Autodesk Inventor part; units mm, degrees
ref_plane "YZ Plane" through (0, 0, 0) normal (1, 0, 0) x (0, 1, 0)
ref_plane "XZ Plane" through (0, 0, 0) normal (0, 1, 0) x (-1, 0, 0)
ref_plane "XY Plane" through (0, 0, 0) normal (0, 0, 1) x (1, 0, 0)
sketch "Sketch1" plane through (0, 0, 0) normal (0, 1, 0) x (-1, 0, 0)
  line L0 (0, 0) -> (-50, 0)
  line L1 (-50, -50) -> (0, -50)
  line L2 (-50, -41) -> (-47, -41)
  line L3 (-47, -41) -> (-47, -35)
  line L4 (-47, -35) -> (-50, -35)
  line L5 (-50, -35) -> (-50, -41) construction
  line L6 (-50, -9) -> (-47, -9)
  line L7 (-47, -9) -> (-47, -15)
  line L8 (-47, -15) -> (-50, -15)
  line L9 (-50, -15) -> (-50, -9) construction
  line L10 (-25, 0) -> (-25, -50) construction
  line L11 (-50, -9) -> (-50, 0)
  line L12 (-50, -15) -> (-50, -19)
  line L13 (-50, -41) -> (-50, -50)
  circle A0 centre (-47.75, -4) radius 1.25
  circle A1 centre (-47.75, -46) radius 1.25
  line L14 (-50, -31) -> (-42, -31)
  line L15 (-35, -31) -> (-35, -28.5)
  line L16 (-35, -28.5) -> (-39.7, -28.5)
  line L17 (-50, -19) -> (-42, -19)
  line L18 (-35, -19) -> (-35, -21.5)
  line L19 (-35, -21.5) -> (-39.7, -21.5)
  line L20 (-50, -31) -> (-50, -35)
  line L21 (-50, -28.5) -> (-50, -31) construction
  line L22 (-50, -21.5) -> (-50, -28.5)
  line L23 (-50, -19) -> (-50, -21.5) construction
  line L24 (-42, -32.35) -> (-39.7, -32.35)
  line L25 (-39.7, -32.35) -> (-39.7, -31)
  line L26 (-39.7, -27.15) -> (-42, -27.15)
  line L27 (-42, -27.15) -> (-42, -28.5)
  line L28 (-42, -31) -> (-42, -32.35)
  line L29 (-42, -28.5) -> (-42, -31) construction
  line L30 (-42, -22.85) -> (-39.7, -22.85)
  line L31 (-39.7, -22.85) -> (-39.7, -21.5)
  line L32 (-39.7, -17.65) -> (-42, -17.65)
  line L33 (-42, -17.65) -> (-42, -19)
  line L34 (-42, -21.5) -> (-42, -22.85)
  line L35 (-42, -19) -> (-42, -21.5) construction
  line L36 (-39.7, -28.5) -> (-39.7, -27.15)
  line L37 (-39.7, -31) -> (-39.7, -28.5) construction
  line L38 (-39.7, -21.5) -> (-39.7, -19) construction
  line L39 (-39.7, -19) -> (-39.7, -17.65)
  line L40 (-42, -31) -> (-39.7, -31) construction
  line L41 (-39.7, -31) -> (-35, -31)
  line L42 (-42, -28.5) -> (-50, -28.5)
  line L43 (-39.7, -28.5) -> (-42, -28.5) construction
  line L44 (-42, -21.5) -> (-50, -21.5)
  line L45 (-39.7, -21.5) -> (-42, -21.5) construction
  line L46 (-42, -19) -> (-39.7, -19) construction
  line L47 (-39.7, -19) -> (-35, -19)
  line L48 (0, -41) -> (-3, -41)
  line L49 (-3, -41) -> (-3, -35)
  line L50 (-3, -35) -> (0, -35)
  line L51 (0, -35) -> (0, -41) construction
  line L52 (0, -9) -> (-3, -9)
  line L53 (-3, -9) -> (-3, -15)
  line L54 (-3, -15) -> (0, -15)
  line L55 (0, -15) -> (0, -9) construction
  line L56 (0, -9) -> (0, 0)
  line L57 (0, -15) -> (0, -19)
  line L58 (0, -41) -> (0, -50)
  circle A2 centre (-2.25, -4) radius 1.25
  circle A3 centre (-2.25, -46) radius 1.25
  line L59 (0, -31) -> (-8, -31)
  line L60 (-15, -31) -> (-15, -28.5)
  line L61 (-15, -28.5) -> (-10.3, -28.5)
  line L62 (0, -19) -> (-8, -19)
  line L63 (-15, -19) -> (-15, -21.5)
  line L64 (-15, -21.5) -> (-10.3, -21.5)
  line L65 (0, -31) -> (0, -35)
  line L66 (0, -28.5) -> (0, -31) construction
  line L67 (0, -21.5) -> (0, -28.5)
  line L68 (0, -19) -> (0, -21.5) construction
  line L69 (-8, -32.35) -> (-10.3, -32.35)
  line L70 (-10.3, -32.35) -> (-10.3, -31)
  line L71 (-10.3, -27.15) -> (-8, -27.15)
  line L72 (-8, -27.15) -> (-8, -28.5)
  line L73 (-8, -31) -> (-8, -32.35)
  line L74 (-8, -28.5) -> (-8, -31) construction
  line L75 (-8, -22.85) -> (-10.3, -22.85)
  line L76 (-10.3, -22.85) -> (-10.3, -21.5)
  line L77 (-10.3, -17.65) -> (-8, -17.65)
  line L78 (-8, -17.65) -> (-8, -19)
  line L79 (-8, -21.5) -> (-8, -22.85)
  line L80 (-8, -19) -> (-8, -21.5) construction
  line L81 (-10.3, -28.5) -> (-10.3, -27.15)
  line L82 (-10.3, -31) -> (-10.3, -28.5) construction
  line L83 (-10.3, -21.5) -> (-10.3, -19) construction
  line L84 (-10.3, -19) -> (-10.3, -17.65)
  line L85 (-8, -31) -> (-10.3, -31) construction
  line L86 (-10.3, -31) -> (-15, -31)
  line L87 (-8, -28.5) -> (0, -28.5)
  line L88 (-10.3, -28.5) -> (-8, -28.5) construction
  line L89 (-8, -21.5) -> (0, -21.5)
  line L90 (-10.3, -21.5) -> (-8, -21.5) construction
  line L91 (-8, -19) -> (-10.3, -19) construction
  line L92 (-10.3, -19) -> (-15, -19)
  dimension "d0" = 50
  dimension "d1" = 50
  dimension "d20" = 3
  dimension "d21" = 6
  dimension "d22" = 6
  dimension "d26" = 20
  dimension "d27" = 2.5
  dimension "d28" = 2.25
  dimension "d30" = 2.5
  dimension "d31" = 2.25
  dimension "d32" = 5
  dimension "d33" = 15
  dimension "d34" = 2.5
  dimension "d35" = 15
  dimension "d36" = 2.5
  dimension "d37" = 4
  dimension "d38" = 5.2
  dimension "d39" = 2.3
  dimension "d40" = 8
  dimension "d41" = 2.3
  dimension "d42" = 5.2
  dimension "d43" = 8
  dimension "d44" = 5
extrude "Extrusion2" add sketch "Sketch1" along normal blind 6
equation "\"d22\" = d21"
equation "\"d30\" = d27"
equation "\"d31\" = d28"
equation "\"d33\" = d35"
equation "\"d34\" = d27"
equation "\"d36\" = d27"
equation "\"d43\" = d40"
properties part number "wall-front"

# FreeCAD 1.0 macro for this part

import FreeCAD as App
import Part
import Sketcher
from FreeCAD import Vector

doc = App.newDocument("Part")
body = doc.addObject("PartDesign::Body", "Body")

# Sketch on XZ plane
sketch1 = body.newObject("Sketcher::SketchObject", "Sketch")
sketch1.AttachmentSupport = (doc.getObject("XZ_Plane"), [""])
sketch1.MapMode = "FlatFace"
sketch1.addGeometry([
    Part.LineSegment(Vector(0, -9, 0), Vector(0, 0, 0)),  # 0
    Part.LineSegment(Vector(0, 0, 0), Vector(50, 0, 0)),  # 1
    Part.LineSegment(Vector(50, 0, 0), Vector(50, -9, 0)),  # 2
    Part.LineSegment(Vector(50, -9, 0), Vector(47, -9, 0)),  # 3
    Part.LineSegment(Vector(47, -9, 0), Vector(47, -15, 0)),  # 4
    Part.LineSegment(Vector(47, -15, 0), Vector(50, -15, 0)),  # 5
    Part.LineSegment(Vector(50, -15, 0), Vector(50, -19, 0)),  # 6
    Part.LineSegment(Vector(50, -19, 0), Vector(42, -19, 0)),  # 7
    Part.LineSegment(Vector(42, -19, 0), Vector(42, -17.6, 0)),  # 8
    Part.LineSegment(Vector(42, -17.6, 0), Vector(39.7, -17.6, 0)),  # 9
    Part.LineSegment(Vector(39.7, -17.6, 0), Vector(39.7, -19, 0)),  # 10
    Part.LineSegment(Vector(39.7, -19, 0), Vector(35, -19, 0)),  # 11
    Part.LineSegment(Vector(35, -19, 0), Vector(35, -21.5, 0)),  # 12
    Part.LineSegment(Vector(35, -21.5, 0), Vector(39.7, -21.5, 0)),  # 13
    Part.LineSegment(Vector(39.7, -21.5, 0), Vector(39.7, -22.9, 0)),  # 14
    Part.LineSegment(Vector(39.7, -22.9, 0), Vector(42, -22.9, 0)),  # 15
    Part.LineSegment(Vector(42, -22.9, 0), Vector(42, -21.5, 0)),  # 16
    Part.LineSegment(Vector(42, -21.5, 0), Vector(50, -21.5, 0)),  # 17
    Part.LineSegment(Vector(50, -21.5, 0), Vector(50, -28.5, 0)),  # 18
    Part.LineSegment(Vector(50, -28.5, 0), Vector(42, -28.5, 0)),  # 19
    Part.LineSegment(Vector(42, -28.5, 0), Vector(42, -27.1, 0)),  # 20
    Part.LineSegment(Vector(42, -27.1, 0), Vector(39.7, -27.1, 0)),  # 21
    Part.LineSegment(Vector(39.7, -27.1, 0), Vector(39.7, -28.5, 0)),  # 22
    Part.LineSegment(Vector(39.7, -28.5, 0), Vector(35, -28.5, 0)),  # 23
    Part.LineSegment(Vector(35, -28.5, 0), Vector(35, -31, 0)),  # 24
    Part.LineSegment(Vector(35, -31, 0), Vector(39.7, -31, 0)),  # 25
    Part.LineSegment(Vector(39.7, -31, 0), Vector(39.7, -32.4, 0)),  # 26
    Part.LineSegment(Vector(39.7, -32.4, 0), Vector(42, -32.4, 0)),  # 27
    Part.LineSegment(Vector(42, -32.4, 0), Vector(42, -31, 0)),  # 28
    Part.LineSegment(Vector(42, -31, 0), Vector(50, -31, 0)),  # 29
    Part.LineSegment(Vector(50, -31, 0), Vector(50, -35, 0)),  # 30
    Part.LineSegment(Vector(50, -35, 0), Vector(47, -35, 0)),  # 31
    Part.LineSegment(Vector(47, -35, 0), Vector(47, -41, 0)),  # 32
    Part.LineSegment(Vector(47, -41, 0), Vector(50, -41, 0)),  # 33
    Part.LineSegment(Vector(50, -41, 0), Vector(50, -50, 0)),  # 34
    Part.LineSegment(Vector(50, -50, 0), Vector(0, -50, 0)),  # 35
    Part.LineSegment(Vector(0, -50, 0), Vector(0, -41, 0)),  # 36
    Part.LineSegment(Vector(0, -41, 0), Vector(3, -41, 0)),  # 37
    Part.LineSegment(Vector(3, -41, 0), Vector(3, -35, 0)),  # 38
    Part.LineSegment(Vector(3, -35, 0), Vector(0, -35, 0)),  # 39
    Part.LineSegment(Vector(0, -35, 0), Vector(0, -31, 0)),  # 40
    Part.LineSegment(Vector(0, -31, 0), Vector(8, -31, 0)),  # 41
    Part.LineSegment(Vector(8, -31, 0), Vector(8, -32.4, 0)),  # 42
    Part.LineSegment(Vector(8, -32.4, 0), Vector(10.3, -32.4, 0)),  # 43
    Part.LineSegment(Vector(10.3, -32.4, 0), Vector(10.3, -31, 0)),  # 44
    Part.LineSegment(Vector(10.3, -31, 0), Vector(15, -31, 0)),  # 45
    Part.LineSegment(Vector(15, -31, 0), Vector(15, -28.5, 0)),  # 46
    Part.LineSegment(Vector(15, -28.5, 0), Vector(10.3, -28.5, 0)),  # 47
    Part.LineSegment(Vector(10.3, -28.5, 0), Vector(10.3, -27.1, 0)),  # 48
    Part.LineSegment(Vector(10.3, -27.1, 0), Vector(8, -27.1, 0)),  # 49
    Part.LineSegment(Vector(8, -27.1, 0), Vector(8, -28.5, 0)),  # 50
    Part.LineSegment(Vector(8, -28.5, 0), Vector(0, -28.5, 0)),  # 51
    Part.LineSegment(Vector(0, -28.5, 0), Vector(0, -21.5, 0)),  # 52
    Part.LineSegment(Vector(0, -21.5, 0), Vector(8, -21.5, 0)),  # 53
    Part.LineSegment(Vector(8, -21.5, 0), Vector(8, -22.9, 0)),  # 54
    Part.LineSegment(Vector(8, -22.9, 0), Vector(10.3, -22.9, 0)),  # 55
    Part.LineSegment(Vector(10.3, -22.9, 0), Vector(10.3, -21.5, 0)),  # 56
    Part.LineSegment(Vector(10.3, -21.5, 0), Vector(15, -21.5, 0)),  # 57
    Part.LineSegment(Vector(15, -21.5, 0), Vector(15, -19, 0)),  # 58
    Part.LineSegment(Vector(15, -19, 0), Vector(10.3, -19, 0)),  # 59
    Part.LineSegment(Vector(10.3, -19, 0), Vector(10.3, -17.6, 0)),  # 60
    Part.LineSegment(Vector(10.3, -17.6, 0), Vector(8, -17.6, 0)),  # 61
    Part.LineSegment(Vector(8, -17.6, 0), Vector(8, -19, 0)),  # 62
    Part.LineSegment(Vector(8, -19, 0), Vector(0, -19, 0)),  # 63
    Part.LineSegment(Vector(0, -19, 0), Vector(0, -15, 0)),  # 64
    Part.LineSegment(Vector(0, -15, 0), Vector(3, -15, 0)),  # 65
    Part.LineSegment(Vector(3, -15, 0), Vector(3, -9, 0)),  # 66
    Part.LineSegment(Vector(3, -9, 0), Vector(0, -9, 0)),  # 67
    Part.Circle(Vector(47.8, -46, 0), Vector(0, 0, 1), 1.2),  # 68
    Part.Circle(Vector(2.2, -46, 0), Vector(0, 0, 1), 1.2),  # 69
    Part.Circle(Vector(47.8, -4, 0), Vector(0, 0, 1), 1.2),  # 70
    Part.Circle(Vector(2.2, -4, 0), Vector(0, 0, 1), 1.2),  # 71
], False)
sketch1.addConstraint([
    Sketcher.Constraint("Coincident", 0, 2, 1, 1),
    Sketcher.Constraint("Coincident", 1, 2, 2, 1),
    Sketcher.Constraint("Coincident", 2, 2, 3, 1),
    Sketcher.Constraint("Coincident", 3, 2, 4, 1),
    Sketcher.Constraint("Coincident", 4, 2, 5, 1),
    Sketcher.Constraint("Coincident", 5, 2, 6, 1),
    Sketcher.Constraint("Coincident", 6, 2, 7, 1),
    Sketcher.Constraint("Coincident", 7, 2, 8, 1),
    Sketcher.Constraint("Coincident", 8, 2, 9, 1),
    Sketcher.Constraint("Coincident", 9, 2, 10, 1),
    Sketcher.Constraint("Coincident", 10, 2, 11, 1),
    Sketcher.Constraint("Coincident", 11, 2, 12, 1),
    Sketcher.Constraint("Coincident", 12, 2, 13, 1),
    Sketcher.Constraint("Coincident", 13, 2, 14, 1),
    Sketcher.Constraint("Coincident", 14, 2, 15, 1),
    Sketcher.Constraint("Coincident", 15, 2, 16, 1),
    Sketcher.Constraint("Coincident", 16, 2, 17, 1),
    Sketcher.Constraint("Coincident", 17, 2, 18, 1),
    Sketcher.Constraint("Coincident", 18, 2, 19, 1),
    Sketcher.Constraint("Coincident", 19, 2, 20, 1),
    Sketcher.Constraint("Coincident", 20, 2, 21, 1),
    Sketcher.Constraint("Coincident", 21, 2, 22, 1),
    Sketcher.Constraint("Coincident", 22, 2, 23, 1),
    Sketcher.Constraint("Coincident", 23, 2, 24, 1),
    Sketcher.Constraint("Coincident", 24, 2, 25, 1),
    Sketcher.Constraint("Coincident", 25, 2, 26, 1),
    Sketcher.Constraint("Coincident", 26, 2, 27, 1),
    Sketcher.Constraint("Coincident", 27, 2, 28, 1),
    Sketcher.Constraint("Coincident", 28, 2, 29, 1),
    Sketcher.Constraint("Coincident", 29, 2, 30, 1),
    Sketcher.Constraint("Coincident", 30, 2, 31, 1),
    Sketcher.Constraint("Coincident", 31, 2, 32, 1),
    Sketcher.Constraint("Coincident", 32, 2, 33, 1),
    Sketcher.Constraint("Coincident", 33, 2, 34, 1),
    Sketcher.Constraint("Coincident", 34, 2, 35, 1),
    Sketcher.Constraint("Coincident", 35, 2, 36, 1),
    Sketcher.Constraint("Coincident", 36, 2, 37, 1),
    Sketcher.Constraint("Coincident", 37, 2, 38, 1),
    Sketcher.Constraint("Coincident", 38, 2, 39, 1),
    Sketcher.Constraint("Coincident", 39, 2, 40, 1),
    Sketcher.Constraint("Coincident", 40, 2, 41, 1),
    Sketcher.Constraint("Coincident", 41, 2, 42, 1),
    Sketcher.Constraint("Coincident", 42, 2, 43, 1),
    Sketcher.Constraint("Coincident", 43, 2, 44, 1),
    Sketcher.Constraint("Coincident", 44, 2, 45, 1),
    Sketcher.Constraint("Coincident", 45, 2, 46, 1),
    Sketcher.Constraint("Coincident", 46, 2, 47, 1),
    Sketcher.Constraint("Coincident", 47, 2, 48, 1),
    Sketcher.Constraint("Coincident", 48, 2, 49, 1),
    Sketcher.Constraint("Coincident", 49, 2, 50, 1),
    Sketcher.Constraint("Coincident", 50, 2, 51, 1),
    Sketcher.Constraint("Coincident", 51, 2, 52, 1),
    Sketcher.Constraint("Coincident", 52, 2, 53, 1),
    Sketcher.Constraint("Coincident", 53, 2, 54, 1),
    Sketcher.Constraint("Coincident", 54, 2, 55, 1),
    Sketcher.Constraint("Coincident", 55, 2, 56, 1),
    Sketcher.Constraint("Coincident", 56, 2, 57, 1),
    Sketcher.Constraint("Coincident", 57, 2, 58, 1),
    Sketcher.Constraint("Coincident", 58, 2, 59, 1),
    Sketcher.Constraint("Coincident", 59, 2, 60, 1),
    Sketcher.Constraint("Coincident", 60, 2, 61, 1),
    Sketcher.Constraint("Coincident", 61, 2, 62, 1),
    Sketcher.Constraint("Coincident", 62, 2, 63, 1),
    Sketcher.Constraint("Coincident", 63, 2, 64, 1),
    Sketcher.Constraint("Coincident", 64, 2, 65, 1),
    Sketcher.Constraint("Coincident", 65, 2, 66, 1),
    Sketcher.Constraint("Coincident", 66, 2, 67, 1),
    Sketcher.Constraint("Coincident", 67, 2, 0, 1),
    Sketcher.Constraint("Vertical", 0),
    Sketcher.Constraint("Horizontal", 1),
    Sketcher.Constraint("Vertical", 2),
    Sketcher.Constraint("Horizontal", 3),
    Sketcher.Constraint("Vertical", 4),
    Sketcher.Constraint("Horizontal", 5),
    Sketcher.Constraint("Vertical", 6),
    Sketcher.Constraint("Horizontal", 7),
    Sketcher.Constraint("Vertical", 8),
    Sketcher.Constraint("Horizontal", 9),
    Sketcher.Constraint("Vertical", 10),
    Sketcher.Constraint("Horizontal", 11),
    Sketcher.Constraint("Vertical", 12),
    Sketcher.Constraint("Horizontal", 13),
    Sketcher.Constraint("Vertical", 14),
    Sketcher.Constraint("Horizontal", 15),
    Sketcher.Constraint("Vertical", 16),
    Sketcher.Constraint("Horizontal", 17),
    Sketcher.Constraint("Vertical", 18),
    Sketcher.Constraint("Horizontal", 19),
    Sketcher.Constraint("Vertical", 20),
    Sketcher.Constraint("Horizontal", 21),
    Sketcher.Constraint("Vertical", 22),
    Sketcher.Constraint("Horizontal", 23),
    Sketcher.Constraint("Vertical", 24),
    Sketcher.Constraint("Horizontal", 25),
    Sketcher.Constraint("Vertical", 26),
    Sketcher.Constraint("Horizontal", 27),
    Sketcher.Constraint("Vertical", 28),
    Sketcher.Constraint("Horizontal", 29),
    Sketcher.Constraint("Vertical", 30),
    Sketcher.Constraint("Horizontal", 31),
    Sketcher.Constraint("Vertical", 32),
    Sketcher.Constraint("Horizontal", 33),
    Sketcher.Constraint("Vertical", 34),
    Sketcher.Constraint("Horizontal", 35),
    Sketcher.Constraint("Vertical", 36),
    Sketcher.Constraint("Horizontal", 37),
    Sketcher.Constraint("Vertical", 38),
    Sketcher.Constraint("Horizontal", 39),
    Sketcher.Constraint("Vertical", 40),
    Sketcher.Constraint("Horizontal", 41),
    Sketcher.Constraint("Vertical", 42),
    Sketcher.Constraint("Horizontal", 43),
    Sketcher.Constraint("Vertical", 44),
    Sketcher.Constraint("Horizontal", 45),
    Sketcher.Constraint("Vertical", 46),
    Sketcher.Constraint("Horizontal", 47),
    Sketcher.Constraint("Vertical", 48),
    Sketcher.Constraint("Horizontal", 49),
    Sketcher.Constraint("Vertical", 50),
    Sketcher.Constraint("Horizontal", 51),
    Sketcher.Constraint("Vertical", 52),
    Sketcher.Constraint("Horizontal", 53),
    Sketcher.Constraint("Vertical", 54),
    Sketcher.Constraint("Horizontal", 55),
    Sketcher.Constraint("Vertical", 56),
    Sketcher.Constraint("Horizontal", 57),
    Sketcher.Constraint("Vertical", 58),
    Sketcher.Constraint("Horizontal", 59),
    Sketcher.Constraint("Vertical", 60),
    Sketcher.Constraint("Horizontal", 61),
    Sketcher.Constraint("Vertical", 62),
    Sketcher.Constraint("Horizontal", 63),
    Sketcher.Constraint("Vertical", 64),
    Sketcher.Constraint("Horizontal", 65),
    Sketcher.Constraint("Vertical", 66),
    Sketcher.Constraint("Horizontal", 67),
    Sketcher.Constraint("Coincident", 0, 2, -1, 1),
    Sketcher.Constraint("Equal", 68, 69),
    Sketcher.Constraint("Equal", 69, 70),
    Sketcher.Constraint("Equal", 70, 71),
    Sketcher.Constraint("PointOnObject", 35, 2, -2),
    Sketcher.Constraint("PointOnObject", 39, 2, -2),
    Sketcher.Constraint("PointOnObject", 51, 2, -2),
    Sketcher.Constraint("PointOnObject", 63, 2, -2),
    Sketcher.Constraint("Horizontal", 68, 3, 69, 3),
    Sketcher.Constraint("Horizontal", 70, 3, 71, 3),
    Sketcher.Constraint("Horizontal", 7, 2, 10, 2),
    Sketcher.Constraint("Horizontal", 13, 2, 16, 2),
    Sketcher.Constraint("Horizontal", 19, 2, 22, 2),
    Sketcher.Constraint("Horizontal", 25, 2, 28, 2),
    Sketcher.Constraint("Horizontal", 33, 2, 36, 2),
    Sketcher.Constraint("Horizontal", 31, 2, 38, 2),
    Sketcher.Constraint("Horizontal", 29, 2, 40, 2),
    Sketcher.Constraint("Horizontal", 27, 2, 42, 2),
    Sketcher.Constraint("Horizontal", 41, 2, 44, 2),
    Sketcher.Constraint("Horizontal", 23, 2, 46, 2),
    Sketcher.Constraint("Horizontal", 21, 2, 48, 2),
    Sketcher.Constraint("Horizontal", 47, 2, 50, 2),
    Sketcher.Constraint("Horizontal", 17, 2, 52, 2),
    Sketcher.Constraint("Horizontal", 15, 2, 54, 2),
    Sketcher.Constraint("Horizontal", 53, 2, 56, 2),
    Sketcher.Constraint("Horizontal", 11, 2, 58, 2),
    Sketcher.Constraint("Horizontal", 9, 2, 60, 2),
    Sketcher.Constraint("Horizontal", 59, 2, 62, 2),
    Sketcher.Constraint("Horizontal", 5, 2, 64, 2),
    Sketcher.Constraint("Horizontal", 3, 2, 66, 2),
    Sketcher.Constraint("Vertical", 68, 3, 70, 3),
    Sketcher.Constraint("Vertical", 69, 3, 71, 3),
    Sketcher.Constraint("Vertical", 2, 2, 5, 2),
    Sketcher.Constraint("Vertical", 10, 2, 13, 2),
    Sketcher.Constraint("Vertical", 8, 2, 15, 2),
    Sketcher.Constraint("Vertical", 6, 2, 17, 2),
    Sketcher.Constraint("Vertical", 16, 2, 19, 2),
    Sketcher.Constraint("Vertical", 14, 2, 21, 2),
    Sketcher.Constraint("Vertical", 12, 2, 23, 2),
    Sketcher.Constraint("Vertical", 22, 2, 25, 2),
    Sketcher.Constraint("Vertical", 20, 2, 27, 2),
    Sketcher.Constraint("Vertical", 18, 2, 29, 2),
    Sketcher.Constraint("Vertical", 4, 2, 31, 2),
    Sketcher.Constraint("Vertical", 30, 2, 33, 2),
    Sketcher.Constraint("Vertical", 44, 2, 47, 2),
    Sketcher.Constraint("Vertical", 42, 2, 49, 2),
    Sketcher.Constraint("Vertical", 50, 2, 53, 2),
    Sketcher.Constraint("Vertical", 48, 2, 55, 2),
    Sketcher.Constraint("Vertical", 46, 2, 57, 2),
    Sketcher.Constraint("Vertical", 56, 2, 59, 2),
    Sketcher.Constraint("Vertical", 54, 2, 61, 2),
    Sketcher.Constraint("Vertical", 38, 2, 65, 2),
    Sketcher.Constraint("Equal", 33, 37),
    Sketcher.Constraint("Equal", 29, 41),
    Sketcher.Constraint("Equal", 27, 43),
    Sketcher.Constraint("Equal", 25, 45),
    Sketcher.Constraint("Equal", 10, 14),
    Sketcher.Constraint("Equal", 16, 20),
    Sketcher.Constraint("Equal", 12, 24),
    Sketcher.Constraint("Equal", 22, 26),
    Sketcher.Constraint("Equal", 6, 30),
    Sketcher.Constraint("Equal", 4, 32),
    Sketcher.Constraint("Equal", 2, 34),
    Sketcher.Constraint("Diameter", 68, 2.5),
    Sketcher.Constraint("DistanceX", 1, 1, 1, 2, 50.0),
    Sketcher.Constraint("DistanceX", 3, 2, 3, 1, 3.0),
    Sketcher.Constraint("DistanceX", 7, 2, 7, 1, 8.0),
    Sketcher.Constraint("DistanceY", 4, 2, 4, 1, 6.0),
    Sketcher.Constraint("DistanceY", 6, 2, 6, 1, 4.0),
    Sketcher.Constraint("DistanceX", 9, 2, 9, 1, 2.3),
    Sketcher.Constraint("DistanceY", 12, 2, 12, 1, 2.5),
    Sketcher.Constraint("DistanceY", 70, 3, -1, 1, 4.0),
    Sketcher.Constraint("DistanceY", 4, 2, -1, 1, 15.0),
    Sketcher.Constraint("DistanceY", 34, 2, -1, 1, 50.0),
    Sketcher.Constraint("DistanceX", -1, 1, 45, 2, 15.0),
    Sketcher.Constraint("DistanceX", -1, 1, 69, 3, 2.25),
    Sketcher.Constraint("DistanceY", 68, 3, -1, 1, 46.0),
    Sketcher.Constraint("DistanceY", 8, 1, 8, 2, 1.35),
    Sketcher.Constraint("DistanceX", -1, 1, 68, 3, 47.75),
])
pad1 = body.newObject("PartDesign::Pad", "Pad")
pad1.Profile = sketch1
pad1.Length = 6
pad1.Reversed = True

doc.recompute()
